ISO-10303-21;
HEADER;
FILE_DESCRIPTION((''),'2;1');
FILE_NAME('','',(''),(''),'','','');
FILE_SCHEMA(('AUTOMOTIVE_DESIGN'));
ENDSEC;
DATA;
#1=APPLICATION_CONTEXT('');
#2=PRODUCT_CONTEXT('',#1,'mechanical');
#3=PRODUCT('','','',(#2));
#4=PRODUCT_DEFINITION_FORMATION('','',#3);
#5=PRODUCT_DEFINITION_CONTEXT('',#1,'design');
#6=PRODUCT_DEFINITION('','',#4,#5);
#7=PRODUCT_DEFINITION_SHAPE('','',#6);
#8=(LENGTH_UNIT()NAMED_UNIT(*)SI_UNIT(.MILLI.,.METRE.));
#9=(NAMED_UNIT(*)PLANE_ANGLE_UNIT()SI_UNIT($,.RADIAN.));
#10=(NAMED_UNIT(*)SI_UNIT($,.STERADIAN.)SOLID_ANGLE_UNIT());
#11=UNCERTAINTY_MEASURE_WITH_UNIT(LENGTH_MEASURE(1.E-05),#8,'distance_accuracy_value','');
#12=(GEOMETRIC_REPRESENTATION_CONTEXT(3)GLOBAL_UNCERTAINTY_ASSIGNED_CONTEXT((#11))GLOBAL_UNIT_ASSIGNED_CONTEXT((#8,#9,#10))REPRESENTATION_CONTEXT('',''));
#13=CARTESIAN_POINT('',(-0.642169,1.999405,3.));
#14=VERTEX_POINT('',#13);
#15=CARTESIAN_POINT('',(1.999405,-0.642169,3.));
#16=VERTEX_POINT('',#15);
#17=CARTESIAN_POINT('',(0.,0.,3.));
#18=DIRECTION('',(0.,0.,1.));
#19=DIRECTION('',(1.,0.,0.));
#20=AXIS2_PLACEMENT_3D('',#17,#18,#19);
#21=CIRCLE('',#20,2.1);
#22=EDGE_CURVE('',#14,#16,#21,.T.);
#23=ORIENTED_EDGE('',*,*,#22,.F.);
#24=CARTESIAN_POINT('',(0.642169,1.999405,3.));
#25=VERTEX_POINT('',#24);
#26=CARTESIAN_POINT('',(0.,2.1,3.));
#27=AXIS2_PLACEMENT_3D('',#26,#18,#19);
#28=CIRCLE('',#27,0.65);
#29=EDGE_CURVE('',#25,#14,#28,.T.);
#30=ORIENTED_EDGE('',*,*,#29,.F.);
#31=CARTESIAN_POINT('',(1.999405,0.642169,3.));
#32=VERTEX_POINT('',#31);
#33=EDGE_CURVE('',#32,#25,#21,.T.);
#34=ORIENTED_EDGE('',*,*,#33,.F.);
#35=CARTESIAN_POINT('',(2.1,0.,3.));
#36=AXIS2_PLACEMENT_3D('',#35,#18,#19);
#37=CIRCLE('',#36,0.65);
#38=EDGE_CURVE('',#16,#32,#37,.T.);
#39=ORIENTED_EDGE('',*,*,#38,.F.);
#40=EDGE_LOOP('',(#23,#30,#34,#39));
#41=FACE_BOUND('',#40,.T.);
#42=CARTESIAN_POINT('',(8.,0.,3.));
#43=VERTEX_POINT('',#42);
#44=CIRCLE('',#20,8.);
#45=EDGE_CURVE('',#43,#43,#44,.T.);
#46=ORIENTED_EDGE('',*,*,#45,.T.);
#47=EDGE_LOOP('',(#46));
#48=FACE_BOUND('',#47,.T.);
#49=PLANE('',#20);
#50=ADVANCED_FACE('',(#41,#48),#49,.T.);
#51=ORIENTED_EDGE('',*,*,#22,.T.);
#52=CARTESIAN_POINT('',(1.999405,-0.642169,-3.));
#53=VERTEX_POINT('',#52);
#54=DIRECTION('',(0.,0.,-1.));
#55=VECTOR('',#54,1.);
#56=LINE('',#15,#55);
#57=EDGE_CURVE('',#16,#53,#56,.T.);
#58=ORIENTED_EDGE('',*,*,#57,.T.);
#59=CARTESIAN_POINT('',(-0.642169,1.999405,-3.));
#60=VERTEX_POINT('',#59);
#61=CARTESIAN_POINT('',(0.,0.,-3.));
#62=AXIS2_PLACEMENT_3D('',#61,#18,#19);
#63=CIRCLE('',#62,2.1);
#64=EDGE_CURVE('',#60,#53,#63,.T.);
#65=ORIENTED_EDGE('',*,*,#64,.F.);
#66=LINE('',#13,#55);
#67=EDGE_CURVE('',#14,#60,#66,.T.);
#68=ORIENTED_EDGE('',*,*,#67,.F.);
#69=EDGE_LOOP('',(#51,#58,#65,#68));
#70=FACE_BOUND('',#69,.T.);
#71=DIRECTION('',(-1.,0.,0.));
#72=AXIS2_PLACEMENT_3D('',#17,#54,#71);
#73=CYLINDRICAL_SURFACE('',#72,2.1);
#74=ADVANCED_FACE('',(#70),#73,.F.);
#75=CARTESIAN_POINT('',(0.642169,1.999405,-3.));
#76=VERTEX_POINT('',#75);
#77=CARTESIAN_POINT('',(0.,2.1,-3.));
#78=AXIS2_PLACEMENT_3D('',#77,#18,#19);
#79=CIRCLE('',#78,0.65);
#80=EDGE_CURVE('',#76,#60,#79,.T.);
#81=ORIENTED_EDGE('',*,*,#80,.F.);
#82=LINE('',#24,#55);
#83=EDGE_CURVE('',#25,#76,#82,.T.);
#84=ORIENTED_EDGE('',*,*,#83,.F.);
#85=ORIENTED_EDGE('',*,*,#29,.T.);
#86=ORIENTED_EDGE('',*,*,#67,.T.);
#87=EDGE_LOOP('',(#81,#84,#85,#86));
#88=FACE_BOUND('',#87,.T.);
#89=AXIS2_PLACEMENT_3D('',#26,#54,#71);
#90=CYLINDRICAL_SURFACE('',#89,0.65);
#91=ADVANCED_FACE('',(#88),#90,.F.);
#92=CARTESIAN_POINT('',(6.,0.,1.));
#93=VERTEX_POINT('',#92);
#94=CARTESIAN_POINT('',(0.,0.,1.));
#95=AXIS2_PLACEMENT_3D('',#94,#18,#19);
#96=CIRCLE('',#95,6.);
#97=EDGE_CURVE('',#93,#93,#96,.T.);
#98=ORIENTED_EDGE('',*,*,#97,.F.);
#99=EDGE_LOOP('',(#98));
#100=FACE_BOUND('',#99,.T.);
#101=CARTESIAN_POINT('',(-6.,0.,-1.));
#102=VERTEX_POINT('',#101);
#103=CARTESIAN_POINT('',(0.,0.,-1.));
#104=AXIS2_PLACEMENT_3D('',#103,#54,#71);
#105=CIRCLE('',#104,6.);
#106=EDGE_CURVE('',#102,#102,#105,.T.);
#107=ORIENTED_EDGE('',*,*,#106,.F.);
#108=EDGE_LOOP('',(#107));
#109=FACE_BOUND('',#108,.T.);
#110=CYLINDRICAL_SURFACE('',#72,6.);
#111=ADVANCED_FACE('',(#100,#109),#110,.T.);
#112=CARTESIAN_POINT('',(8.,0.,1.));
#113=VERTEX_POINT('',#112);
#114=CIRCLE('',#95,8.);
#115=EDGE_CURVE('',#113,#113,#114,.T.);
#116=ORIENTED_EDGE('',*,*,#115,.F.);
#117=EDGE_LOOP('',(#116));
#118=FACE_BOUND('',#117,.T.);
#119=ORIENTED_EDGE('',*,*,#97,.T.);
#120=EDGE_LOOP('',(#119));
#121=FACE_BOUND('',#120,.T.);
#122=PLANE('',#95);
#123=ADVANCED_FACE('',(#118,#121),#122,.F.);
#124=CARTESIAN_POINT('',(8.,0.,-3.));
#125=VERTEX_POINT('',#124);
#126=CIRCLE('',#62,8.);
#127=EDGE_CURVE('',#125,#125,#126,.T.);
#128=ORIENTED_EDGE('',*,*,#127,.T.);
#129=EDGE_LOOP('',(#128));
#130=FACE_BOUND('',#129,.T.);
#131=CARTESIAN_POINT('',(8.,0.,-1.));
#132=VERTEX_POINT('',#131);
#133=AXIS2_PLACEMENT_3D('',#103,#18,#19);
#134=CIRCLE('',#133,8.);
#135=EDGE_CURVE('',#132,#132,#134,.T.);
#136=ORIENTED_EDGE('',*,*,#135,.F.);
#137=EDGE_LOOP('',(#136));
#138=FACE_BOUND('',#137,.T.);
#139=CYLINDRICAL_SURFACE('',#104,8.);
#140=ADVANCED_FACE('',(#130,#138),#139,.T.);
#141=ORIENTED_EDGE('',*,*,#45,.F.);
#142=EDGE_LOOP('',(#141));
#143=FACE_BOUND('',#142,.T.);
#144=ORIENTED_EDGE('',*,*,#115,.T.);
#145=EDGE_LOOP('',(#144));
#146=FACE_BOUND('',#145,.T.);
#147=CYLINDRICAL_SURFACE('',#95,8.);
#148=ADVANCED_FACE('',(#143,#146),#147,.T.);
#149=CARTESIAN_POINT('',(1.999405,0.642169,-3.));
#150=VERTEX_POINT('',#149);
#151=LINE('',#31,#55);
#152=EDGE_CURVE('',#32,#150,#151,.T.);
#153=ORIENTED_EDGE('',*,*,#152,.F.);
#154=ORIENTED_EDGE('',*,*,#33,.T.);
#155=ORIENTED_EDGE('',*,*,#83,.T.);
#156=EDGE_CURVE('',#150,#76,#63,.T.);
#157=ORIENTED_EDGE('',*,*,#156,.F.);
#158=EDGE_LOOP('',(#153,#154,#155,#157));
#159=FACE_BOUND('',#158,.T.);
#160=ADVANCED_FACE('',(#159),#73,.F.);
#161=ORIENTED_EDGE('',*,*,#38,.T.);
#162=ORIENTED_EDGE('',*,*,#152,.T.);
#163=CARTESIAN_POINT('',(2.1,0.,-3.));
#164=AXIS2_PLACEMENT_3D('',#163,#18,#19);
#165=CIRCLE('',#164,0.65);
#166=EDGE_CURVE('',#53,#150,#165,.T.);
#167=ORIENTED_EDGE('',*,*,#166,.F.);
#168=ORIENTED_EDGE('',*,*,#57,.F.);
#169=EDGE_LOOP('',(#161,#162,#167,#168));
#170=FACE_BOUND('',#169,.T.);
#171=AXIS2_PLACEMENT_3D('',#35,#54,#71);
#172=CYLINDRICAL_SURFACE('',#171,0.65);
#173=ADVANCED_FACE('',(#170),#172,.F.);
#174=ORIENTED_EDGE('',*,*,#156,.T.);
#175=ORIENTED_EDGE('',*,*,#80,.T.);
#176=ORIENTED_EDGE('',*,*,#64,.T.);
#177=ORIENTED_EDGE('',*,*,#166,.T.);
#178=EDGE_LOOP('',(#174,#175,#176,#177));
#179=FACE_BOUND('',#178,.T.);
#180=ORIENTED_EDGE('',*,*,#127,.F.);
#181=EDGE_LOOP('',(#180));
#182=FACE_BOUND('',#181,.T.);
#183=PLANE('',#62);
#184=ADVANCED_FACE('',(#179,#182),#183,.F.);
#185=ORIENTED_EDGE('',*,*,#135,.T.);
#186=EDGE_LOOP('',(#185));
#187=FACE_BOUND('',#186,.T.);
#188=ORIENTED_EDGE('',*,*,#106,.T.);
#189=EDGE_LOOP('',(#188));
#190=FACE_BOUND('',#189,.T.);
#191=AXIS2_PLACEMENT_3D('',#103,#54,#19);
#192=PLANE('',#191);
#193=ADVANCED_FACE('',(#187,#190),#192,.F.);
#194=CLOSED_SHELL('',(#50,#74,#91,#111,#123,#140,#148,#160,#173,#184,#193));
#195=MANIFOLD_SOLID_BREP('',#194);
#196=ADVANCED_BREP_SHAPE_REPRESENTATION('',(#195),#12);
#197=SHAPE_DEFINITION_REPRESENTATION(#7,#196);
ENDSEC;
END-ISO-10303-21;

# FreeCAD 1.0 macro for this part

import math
import FreeCAD as App
import Part
import Sketcher

V = App.Vector
Q = App.Units.Quantity

doc = App.newDocument("Part")
body = doc.addObject("PartDesign::Body", "Body")

# Sketch on XY plane
sketch1 = body.newObject("Sketcher::SketchObject", "Sketch")
sketch1.AttachmentSupport = (doc.getObject("XY_Plane"), [""])
sketch1.MapMode = "FlatFace"
sketch1.addGeometry([
    Part.Circle(V(0, 0, 0), V(0, 0, 1), 6),  # 0
    Part.ArcOfCircle(Part.Circle(V(0, 0, 0), V(0, 0, 1), 2.1), math.radians(108), math.radians(342)),  # 1
    Part.ArcOfCircle(Part.Circle(V(0, 2.1, 0), V(0, 0, 1), 0.7), math.radians(-9), math.radians(189)),  # 2
    Part.ArcOfCircle(Part.Circle(V(0, 0, 0), V(0, 0, 1), 2.1), math.radians(18), math.radians(72)),  # 3
    Part.ArcOfCircle(Part.Circle(V(2.1, 0, 0), V(0, 0, 1), 0.7), math.radians(-99), math.radians(99)),  # 4
], False)
sketch1.addConstraint([
    Sketcher.Constraint("Coincident", 1, 1, 2, 2),
    Sketcher.Constraint("Coincident", 2, 1, 3, 2),
    Sketcher.Constraint("Coincident", 3, 1, 4, 2),
    Sketcher.Constraint("Coincident", 4, 1, 1, 2),
    Sketcher.Constraint("Coincident", 0, 3, -1, 1),
    Sketcher.Constraint("Coincident", 1, 3, -1, 1),
    Sketcher.Constraint("Coincident", 3, 3, -1, 1),
    Sketcher.Constraint("Equal", 1, 3),
    Sketcher.Constraint("Equal", 2, 4),
    Sketcher.Constraint("PointOnObject", 2, 3, -2),
    Sketcher.Constraint("PointOnObject", 4, 3, -1),
    Sketcher.Constraint("Diameter", 0, Q("12 mm")),
    Sketcher.Constraint("Radius", 1, Q("2.1 mm")),
    Sketcher.Constraint("Radius", 2, Q("0.65 mm")),
    Sketcher.Constraint("DistanceY", -1, 1, 2, 3, Q("2.1 mm")),
    Sketcher.Constraint("DistanceX", -1, 1, 4, 3, Q("2.1 mm")),
])
pad1 = body.newObject("PartDesign::Pad", "Pad")
pad1.Profile = sketch1
pad1.Length = 6
pad1.Midplane = True

# Sketch on XY plane
sketch2 = body.newObject("Sketcher::SketchObject", "Sketch001")
sketch2.AttachmentSupport = (doc.getObject("XY_Plane"), [""])
sketch2.MapMode = "FlatFace"
sketch2.AttachmentOffset = App.Placement(V(0, 0, 3), App.Rotation())
sketch2.addGeometry([
    Part.Circle(V(0, 0, 0), V(0, 0, 1), 8),
    Part.Circle(V(0, 0, 0), V(0, 0, 1), 6),
], False)
sketch2.addConstraint([
    Sketcher.Constraint("Coincident", 0, 3, -1, 1),
    Sketcher.Constraint("Coincident", 1, 3, -1, 1),
    Sketcher.Constraint("Diameter", 0, Q("16 mm")),
    Sketcher.Constraint("Diameter", 1, Q("12 mm")),
])
pad2 = body.newObject("PartDesign::Pad", "Pad001")
pad2.Profile = sketch2
pad2.Length = 2
pad2.Reversed = True
doc.recompute()

mirrored = body.newObject("PartDesign::Mirrored", "Mirrored")
mirrored.Originals = [pad2]
mirrored.MirrorPlane = (doc.getObject("XY_Plane"), [""])
body.Tip = mirrored

doc.recompute()
